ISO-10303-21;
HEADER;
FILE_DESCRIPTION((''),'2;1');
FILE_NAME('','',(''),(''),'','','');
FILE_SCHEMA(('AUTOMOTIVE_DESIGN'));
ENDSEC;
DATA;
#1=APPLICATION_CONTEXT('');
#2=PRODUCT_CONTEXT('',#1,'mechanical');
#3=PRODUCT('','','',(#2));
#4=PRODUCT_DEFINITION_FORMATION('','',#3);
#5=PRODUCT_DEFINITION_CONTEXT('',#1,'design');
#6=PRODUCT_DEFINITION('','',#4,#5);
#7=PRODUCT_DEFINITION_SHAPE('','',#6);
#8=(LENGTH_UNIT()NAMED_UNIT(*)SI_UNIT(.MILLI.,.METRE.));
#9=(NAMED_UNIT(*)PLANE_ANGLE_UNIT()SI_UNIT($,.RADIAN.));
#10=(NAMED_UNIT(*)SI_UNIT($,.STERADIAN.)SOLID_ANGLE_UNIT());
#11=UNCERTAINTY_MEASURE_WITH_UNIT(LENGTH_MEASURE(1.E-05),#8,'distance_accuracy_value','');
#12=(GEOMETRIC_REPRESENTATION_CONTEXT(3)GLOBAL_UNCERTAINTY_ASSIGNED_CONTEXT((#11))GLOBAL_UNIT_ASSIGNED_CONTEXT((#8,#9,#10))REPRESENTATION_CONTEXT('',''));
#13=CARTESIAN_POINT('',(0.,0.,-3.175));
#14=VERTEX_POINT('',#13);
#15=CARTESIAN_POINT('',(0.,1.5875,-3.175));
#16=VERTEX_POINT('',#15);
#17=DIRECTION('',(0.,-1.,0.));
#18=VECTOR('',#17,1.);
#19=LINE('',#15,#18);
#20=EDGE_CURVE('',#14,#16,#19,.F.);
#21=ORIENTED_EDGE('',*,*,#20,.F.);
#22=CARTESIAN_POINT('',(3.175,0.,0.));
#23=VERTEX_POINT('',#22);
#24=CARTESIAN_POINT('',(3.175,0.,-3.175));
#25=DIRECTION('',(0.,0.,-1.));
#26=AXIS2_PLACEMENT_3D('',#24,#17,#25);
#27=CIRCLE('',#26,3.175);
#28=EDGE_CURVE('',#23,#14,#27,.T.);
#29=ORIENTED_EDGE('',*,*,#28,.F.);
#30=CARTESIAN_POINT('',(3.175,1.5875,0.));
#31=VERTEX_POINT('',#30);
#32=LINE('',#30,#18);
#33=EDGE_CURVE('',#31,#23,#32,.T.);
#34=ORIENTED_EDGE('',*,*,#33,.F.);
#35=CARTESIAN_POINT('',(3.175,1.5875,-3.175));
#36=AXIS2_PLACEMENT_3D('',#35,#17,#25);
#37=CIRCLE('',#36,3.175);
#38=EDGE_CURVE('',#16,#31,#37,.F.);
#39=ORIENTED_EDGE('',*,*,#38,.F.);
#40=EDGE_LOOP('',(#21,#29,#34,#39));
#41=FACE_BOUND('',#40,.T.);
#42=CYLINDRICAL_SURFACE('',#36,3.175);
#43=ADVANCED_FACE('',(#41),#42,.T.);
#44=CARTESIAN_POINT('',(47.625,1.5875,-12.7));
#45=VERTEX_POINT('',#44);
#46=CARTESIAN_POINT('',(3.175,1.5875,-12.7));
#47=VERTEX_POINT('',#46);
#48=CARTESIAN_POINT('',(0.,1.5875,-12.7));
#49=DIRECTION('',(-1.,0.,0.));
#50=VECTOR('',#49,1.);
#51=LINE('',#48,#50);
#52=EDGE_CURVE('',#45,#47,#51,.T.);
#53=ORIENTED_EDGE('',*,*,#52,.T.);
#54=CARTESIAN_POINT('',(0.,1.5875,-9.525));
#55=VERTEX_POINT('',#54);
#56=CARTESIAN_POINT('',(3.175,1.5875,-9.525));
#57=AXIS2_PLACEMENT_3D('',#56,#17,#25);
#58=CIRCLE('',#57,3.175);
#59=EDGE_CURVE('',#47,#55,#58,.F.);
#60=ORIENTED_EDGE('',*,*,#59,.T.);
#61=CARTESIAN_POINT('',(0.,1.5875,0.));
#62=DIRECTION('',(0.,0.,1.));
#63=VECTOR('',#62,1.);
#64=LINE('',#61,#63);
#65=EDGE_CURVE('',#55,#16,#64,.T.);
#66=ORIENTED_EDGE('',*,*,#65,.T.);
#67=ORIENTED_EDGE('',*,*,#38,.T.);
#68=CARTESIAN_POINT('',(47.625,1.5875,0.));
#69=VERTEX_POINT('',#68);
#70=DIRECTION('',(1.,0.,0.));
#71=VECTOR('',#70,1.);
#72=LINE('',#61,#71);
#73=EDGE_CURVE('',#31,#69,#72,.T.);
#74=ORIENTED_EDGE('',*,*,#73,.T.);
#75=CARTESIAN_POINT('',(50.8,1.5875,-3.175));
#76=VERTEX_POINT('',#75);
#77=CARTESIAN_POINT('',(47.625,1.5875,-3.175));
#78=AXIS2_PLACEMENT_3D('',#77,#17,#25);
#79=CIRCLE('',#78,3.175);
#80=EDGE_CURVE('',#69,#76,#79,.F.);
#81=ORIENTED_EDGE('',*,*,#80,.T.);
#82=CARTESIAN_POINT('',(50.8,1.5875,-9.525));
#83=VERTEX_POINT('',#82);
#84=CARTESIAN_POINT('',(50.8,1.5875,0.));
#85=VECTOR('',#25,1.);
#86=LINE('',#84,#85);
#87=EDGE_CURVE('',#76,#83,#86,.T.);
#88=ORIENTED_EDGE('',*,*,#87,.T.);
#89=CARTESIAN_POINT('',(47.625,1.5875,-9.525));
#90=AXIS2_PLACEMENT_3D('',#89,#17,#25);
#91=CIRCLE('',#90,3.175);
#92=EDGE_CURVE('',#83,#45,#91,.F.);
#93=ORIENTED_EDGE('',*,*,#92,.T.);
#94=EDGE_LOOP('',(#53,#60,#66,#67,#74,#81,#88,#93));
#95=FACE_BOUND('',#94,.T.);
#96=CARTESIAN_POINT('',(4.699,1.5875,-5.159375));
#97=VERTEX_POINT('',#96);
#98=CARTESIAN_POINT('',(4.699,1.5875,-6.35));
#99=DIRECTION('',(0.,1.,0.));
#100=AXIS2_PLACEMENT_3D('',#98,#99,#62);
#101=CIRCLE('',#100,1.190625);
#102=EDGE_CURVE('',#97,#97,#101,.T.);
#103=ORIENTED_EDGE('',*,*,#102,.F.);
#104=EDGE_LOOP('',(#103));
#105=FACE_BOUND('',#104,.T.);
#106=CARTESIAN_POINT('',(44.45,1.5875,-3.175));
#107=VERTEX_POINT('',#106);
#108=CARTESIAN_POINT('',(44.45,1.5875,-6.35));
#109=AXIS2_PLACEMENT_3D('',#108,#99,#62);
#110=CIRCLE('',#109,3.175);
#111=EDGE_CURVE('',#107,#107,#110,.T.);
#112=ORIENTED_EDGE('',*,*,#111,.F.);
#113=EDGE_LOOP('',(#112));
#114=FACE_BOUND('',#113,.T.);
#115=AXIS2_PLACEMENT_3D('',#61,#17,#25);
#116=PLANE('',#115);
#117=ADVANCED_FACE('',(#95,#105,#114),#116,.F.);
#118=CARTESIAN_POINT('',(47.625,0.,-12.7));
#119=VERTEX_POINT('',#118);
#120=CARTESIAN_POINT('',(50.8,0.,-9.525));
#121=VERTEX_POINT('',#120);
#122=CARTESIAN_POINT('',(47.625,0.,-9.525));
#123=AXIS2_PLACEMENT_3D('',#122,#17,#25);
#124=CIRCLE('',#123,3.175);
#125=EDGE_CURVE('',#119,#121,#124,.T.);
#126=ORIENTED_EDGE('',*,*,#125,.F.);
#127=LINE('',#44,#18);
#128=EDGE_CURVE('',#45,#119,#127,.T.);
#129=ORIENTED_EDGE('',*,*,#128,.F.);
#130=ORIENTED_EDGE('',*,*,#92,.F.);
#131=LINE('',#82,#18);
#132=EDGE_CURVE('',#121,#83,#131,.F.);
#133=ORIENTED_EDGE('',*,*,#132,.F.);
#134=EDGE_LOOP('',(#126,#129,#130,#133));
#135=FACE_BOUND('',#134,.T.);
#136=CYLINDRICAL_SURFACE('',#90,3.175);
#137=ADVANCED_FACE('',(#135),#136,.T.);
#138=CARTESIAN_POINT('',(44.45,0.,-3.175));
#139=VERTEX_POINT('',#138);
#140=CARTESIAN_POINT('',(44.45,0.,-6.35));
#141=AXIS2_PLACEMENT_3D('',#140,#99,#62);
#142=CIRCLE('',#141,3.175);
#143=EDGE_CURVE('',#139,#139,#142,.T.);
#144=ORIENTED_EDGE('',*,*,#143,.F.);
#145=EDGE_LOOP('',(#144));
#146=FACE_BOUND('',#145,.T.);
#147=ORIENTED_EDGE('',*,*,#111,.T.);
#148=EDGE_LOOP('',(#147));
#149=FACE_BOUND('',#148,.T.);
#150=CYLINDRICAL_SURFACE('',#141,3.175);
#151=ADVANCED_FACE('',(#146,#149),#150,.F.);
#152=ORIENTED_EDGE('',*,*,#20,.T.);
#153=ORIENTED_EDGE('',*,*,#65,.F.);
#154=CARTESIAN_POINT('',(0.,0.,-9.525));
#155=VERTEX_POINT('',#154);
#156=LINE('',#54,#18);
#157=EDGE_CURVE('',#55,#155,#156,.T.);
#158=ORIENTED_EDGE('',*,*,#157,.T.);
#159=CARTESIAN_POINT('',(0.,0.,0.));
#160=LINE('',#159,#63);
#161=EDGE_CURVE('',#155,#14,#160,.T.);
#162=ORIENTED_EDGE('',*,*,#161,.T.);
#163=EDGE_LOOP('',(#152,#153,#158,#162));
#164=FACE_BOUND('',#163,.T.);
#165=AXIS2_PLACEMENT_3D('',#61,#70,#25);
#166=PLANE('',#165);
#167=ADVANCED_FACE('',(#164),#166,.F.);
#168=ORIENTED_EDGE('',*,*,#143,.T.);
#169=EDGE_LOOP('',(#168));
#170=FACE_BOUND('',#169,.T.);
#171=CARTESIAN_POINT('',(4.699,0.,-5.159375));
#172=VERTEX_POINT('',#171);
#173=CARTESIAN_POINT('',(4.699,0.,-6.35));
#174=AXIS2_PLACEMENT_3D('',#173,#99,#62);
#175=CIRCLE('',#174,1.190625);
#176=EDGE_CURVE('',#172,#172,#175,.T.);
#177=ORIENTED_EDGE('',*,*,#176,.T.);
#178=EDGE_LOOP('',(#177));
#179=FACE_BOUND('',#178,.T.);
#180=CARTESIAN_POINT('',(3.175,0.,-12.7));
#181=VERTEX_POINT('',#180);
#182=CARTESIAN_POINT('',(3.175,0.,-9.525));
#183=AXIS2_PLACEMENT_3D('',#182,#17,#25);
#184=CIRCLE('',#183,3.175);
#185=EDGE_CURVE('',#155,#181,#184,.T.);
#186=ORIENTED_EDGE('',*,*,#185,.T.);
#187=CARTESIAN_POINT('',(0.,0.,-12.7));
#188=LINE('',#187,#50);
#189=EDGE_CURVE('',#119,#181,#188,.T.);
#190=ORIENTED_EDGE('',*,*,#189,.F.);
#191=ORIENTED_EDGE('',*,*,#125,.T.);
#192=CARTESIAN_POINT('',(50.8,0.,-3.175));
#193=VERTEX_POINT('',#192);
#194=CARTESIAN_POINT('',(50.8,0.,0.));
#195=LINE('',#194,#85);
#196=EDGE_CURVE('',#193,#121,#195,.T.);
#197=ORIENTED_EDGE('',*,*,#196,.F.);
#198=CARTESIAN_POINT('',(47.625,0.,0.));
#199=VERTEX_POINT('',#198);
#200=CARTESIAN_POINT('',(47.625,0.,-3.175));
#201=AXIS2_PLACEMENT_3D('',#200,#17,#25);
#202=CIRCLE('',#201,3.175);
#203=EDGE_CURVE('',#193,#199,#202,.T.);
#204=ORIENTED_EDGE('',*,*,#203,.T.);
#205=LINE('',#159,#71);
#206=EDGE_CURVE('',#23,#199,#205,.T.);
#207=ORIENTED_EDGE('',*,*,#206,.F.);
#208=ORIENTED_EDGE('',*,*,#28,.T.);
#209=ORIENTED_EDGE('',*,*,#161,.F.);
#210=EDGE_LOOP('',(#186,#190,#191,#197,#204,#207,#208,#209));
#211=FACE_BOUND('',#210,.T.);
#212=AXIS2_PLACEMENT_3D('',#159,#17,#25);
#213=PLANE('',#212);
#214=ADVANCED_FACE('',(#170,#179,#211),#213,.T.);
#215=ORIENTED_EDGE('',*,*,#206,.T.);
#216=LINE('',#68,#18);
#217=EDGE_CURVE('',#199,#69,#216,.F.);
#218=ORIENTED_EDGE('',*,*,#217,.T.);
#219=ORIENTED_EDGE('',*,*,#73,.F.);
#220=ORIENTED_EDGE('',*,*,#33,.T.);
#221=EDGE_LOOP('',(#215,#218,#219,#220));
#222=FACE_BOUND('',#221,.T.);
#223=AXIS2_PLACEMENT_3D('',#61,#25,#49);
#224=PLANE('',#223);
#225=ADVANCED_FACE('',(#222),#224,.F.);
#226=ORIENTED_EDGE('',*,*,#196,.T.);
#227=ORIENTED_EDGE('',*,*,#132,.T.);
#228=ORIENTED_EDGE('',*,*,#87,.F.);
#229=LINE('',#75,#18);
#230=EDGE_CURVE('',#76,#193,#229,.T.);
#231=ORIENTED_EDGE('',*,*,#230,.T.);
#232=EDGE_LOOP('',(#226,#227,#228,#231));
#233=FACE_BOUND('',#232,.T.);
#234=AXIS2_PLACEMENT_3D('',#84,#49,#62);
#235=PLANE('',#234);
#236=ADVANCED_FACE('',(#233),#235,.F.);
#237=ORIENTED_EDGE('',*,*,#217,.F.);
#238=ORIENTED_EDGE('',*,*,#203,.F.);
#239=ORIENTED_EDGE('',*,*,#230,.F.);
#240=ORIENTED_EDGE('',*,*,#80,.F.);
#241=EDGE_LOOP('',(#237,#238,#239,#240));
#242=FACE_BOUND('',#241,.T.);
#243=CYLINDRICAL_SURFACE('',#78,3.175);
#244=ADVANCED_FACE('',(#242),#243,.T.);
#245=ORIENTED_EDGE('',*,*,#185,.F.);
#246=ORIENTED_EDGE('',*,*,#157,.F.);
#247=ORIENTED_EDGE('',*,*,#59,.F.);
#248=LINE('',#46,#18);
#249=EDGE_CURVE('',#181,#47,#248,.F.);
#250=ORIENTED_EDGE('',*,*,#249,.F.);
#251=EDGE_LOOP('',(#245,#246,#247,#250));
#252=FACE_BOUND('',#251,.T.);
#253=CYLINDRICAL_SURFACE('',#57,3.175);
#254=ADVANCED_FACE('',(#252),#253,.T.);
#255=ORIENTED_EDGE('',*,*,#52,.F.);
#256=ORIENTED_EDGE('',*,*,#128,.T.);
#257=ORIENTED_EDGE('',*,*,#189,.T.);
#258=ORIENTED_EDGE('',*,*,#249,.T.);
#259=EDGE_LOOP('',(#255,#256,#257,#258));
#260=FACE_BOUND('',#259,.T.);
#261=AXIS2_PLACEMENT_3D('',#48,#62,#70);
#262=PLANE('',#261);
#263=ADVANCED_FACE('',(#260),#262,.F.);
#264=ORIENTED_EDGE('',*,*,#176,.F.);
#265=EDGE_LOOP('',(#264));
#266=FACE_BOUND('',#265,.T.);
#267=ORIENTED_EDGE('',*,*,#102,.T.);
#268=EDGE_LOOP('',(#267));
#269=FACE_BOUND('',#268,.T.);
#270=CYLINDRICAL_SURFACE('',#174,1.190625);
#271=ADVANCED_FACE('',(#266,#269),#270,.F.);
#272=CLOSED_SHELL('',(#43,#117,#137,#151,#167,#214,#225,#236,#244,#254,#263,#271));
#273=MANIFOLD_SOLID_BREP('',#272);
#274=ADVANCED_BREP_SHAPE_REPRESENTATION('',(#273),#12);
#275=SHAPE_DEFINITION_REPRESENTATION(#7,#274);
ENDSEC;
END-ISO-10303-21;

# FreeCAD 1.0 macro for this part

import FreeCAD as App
import Part
import Sketcher

V = App.Vector
Q = App.Units.Quantity


def edges_at(feature, points):
    """Names of the edges that pass closest to the given points."""
    edges = feature.Shape.Edges
    near = lambda p: min(range(len(edges)), key=lambda i: edges[i].distToShape(Part.Vertex(*p))[0])
    return sorted({f"Edge{near(p) + 1}" for p in points})

doc = App.newDocument("Part")
body = doc.addObject("PartDesign::Body", "Body")

# Sketch on XZ plane
sketch1 = doc.addObject("Sketcher::SketchObject", "Sketch")
body.addObject(sketch1)
sketch1.AttachmentSupport = (doc.XZ_Plane, [""])
sketch1.MapMode = "FlatFace"
sketch1.addGeometry([
    Part.LineSegment(V(0, -13, 0), V(0, 0, 0)),
    Part.LineSegment(V(0, 0, 0), V(51, 0, 0)),
    Part.LineSegment(V(51, 0, 0), V(51, -13, 0)),
    Part.LineSegment(V(51, -13, 0), V(0, -13, 0)),
], False)
sketch1.addConstraint([
    Sketcher.Constraint("Coincident", 0, 2, 1, 1),
    Sketcher.Constraint("Coincident", 1, 2, 2, 1),
    Sketcher.Constraint("Coincident", 2, 2, 3, 1),
    Sketcher.Constraint("Coincident", 3, 2, 0, 1),
    Sketcher.Constraint("Vertical", 0),
    Sketcher.Constraint("Horizontal", 1),
    Sketcher.Constraint("Vertical", 2),
    Sketcher.Constraint("Horizontal", 3),
    Sketcher.Constraint("Coincident", 0, 2, -1, 1),
    Sketcher.Constraint("DistanceX", 1, 1, 1, 2, Q("2 in")),
    Sketcher.Constraint("DistanceY", 0, 1, 0, 2, Q("0.5 in")),
])
pad1 = doc.addObject("PartDesign::Pad", "Pad")
body.addObject(pad1)
pad1.Profile = sketch1
pad1.Length = Q("0.0625 in")
pad1.Reversed = True

# Sketch on XZ plane
sketch2 = doc.addObject("Sketcher::SketchObject", "Sketch001")
body.addObject(sketch2)
sketch2.AttachmentSupport = (doc.XZ_Plane, [""])
sketch2.MapMode = "FlatFace"
sketch2.AttachmentOffset = App.Placement(V(0, 0, -0.0625 * 25.4), App.Rotation())
sketch2.addGeometry([
    Part.Circle(V(4.7, -6.3, 0), V(0, 0, 1), 1.2),
    Part.Circle(V(44.5, -6.3, 0), V(0, 0, 1), 3.2),
], False)
sketch2.addConstraint([
    Sketcher.Constraint("Horizontal", 0, 3, 1, 3),
    Sketcher.Constraint("Diameter", 1, Q("0.25 in")),
    Sketcher.Constraint("Diameter", 0, Q("0.09375 in")),
    Sketcher.Constraint("DistanceY", 0, 3, -1, 1, Q("0.25 in")),
    Sketcher.Constraint("DistanceX", -1, 1, 1, 3, Q("1.75 in")),
    Sketcher.Constraint("DistanceX", -1, 1, 0, 3, Q("0.185 in")),
])
pocket1 = doc.addObject("PartDesign::Pocket", "Pocket")
body.addObject(pocket1)
pocket1.Profile = sketch2
pocket1.Type = "ThroughAll"
pocket1.Reversed = True
doc.recompute()

fillet = doc.addObject("PartDesign::Fillet", "Fillet")
body.addObject(fillet)
fillet.Base = (pocket1, edges_at(pocket1, [
    (0, 0.794, -12.7),
    (50.8, 0.794, -12.7),
    (50.8, 0.794, 0),
    (0, 0.794, 0),
]))
fillet.Radius = Q("0.125 in")

doc.recompute()
